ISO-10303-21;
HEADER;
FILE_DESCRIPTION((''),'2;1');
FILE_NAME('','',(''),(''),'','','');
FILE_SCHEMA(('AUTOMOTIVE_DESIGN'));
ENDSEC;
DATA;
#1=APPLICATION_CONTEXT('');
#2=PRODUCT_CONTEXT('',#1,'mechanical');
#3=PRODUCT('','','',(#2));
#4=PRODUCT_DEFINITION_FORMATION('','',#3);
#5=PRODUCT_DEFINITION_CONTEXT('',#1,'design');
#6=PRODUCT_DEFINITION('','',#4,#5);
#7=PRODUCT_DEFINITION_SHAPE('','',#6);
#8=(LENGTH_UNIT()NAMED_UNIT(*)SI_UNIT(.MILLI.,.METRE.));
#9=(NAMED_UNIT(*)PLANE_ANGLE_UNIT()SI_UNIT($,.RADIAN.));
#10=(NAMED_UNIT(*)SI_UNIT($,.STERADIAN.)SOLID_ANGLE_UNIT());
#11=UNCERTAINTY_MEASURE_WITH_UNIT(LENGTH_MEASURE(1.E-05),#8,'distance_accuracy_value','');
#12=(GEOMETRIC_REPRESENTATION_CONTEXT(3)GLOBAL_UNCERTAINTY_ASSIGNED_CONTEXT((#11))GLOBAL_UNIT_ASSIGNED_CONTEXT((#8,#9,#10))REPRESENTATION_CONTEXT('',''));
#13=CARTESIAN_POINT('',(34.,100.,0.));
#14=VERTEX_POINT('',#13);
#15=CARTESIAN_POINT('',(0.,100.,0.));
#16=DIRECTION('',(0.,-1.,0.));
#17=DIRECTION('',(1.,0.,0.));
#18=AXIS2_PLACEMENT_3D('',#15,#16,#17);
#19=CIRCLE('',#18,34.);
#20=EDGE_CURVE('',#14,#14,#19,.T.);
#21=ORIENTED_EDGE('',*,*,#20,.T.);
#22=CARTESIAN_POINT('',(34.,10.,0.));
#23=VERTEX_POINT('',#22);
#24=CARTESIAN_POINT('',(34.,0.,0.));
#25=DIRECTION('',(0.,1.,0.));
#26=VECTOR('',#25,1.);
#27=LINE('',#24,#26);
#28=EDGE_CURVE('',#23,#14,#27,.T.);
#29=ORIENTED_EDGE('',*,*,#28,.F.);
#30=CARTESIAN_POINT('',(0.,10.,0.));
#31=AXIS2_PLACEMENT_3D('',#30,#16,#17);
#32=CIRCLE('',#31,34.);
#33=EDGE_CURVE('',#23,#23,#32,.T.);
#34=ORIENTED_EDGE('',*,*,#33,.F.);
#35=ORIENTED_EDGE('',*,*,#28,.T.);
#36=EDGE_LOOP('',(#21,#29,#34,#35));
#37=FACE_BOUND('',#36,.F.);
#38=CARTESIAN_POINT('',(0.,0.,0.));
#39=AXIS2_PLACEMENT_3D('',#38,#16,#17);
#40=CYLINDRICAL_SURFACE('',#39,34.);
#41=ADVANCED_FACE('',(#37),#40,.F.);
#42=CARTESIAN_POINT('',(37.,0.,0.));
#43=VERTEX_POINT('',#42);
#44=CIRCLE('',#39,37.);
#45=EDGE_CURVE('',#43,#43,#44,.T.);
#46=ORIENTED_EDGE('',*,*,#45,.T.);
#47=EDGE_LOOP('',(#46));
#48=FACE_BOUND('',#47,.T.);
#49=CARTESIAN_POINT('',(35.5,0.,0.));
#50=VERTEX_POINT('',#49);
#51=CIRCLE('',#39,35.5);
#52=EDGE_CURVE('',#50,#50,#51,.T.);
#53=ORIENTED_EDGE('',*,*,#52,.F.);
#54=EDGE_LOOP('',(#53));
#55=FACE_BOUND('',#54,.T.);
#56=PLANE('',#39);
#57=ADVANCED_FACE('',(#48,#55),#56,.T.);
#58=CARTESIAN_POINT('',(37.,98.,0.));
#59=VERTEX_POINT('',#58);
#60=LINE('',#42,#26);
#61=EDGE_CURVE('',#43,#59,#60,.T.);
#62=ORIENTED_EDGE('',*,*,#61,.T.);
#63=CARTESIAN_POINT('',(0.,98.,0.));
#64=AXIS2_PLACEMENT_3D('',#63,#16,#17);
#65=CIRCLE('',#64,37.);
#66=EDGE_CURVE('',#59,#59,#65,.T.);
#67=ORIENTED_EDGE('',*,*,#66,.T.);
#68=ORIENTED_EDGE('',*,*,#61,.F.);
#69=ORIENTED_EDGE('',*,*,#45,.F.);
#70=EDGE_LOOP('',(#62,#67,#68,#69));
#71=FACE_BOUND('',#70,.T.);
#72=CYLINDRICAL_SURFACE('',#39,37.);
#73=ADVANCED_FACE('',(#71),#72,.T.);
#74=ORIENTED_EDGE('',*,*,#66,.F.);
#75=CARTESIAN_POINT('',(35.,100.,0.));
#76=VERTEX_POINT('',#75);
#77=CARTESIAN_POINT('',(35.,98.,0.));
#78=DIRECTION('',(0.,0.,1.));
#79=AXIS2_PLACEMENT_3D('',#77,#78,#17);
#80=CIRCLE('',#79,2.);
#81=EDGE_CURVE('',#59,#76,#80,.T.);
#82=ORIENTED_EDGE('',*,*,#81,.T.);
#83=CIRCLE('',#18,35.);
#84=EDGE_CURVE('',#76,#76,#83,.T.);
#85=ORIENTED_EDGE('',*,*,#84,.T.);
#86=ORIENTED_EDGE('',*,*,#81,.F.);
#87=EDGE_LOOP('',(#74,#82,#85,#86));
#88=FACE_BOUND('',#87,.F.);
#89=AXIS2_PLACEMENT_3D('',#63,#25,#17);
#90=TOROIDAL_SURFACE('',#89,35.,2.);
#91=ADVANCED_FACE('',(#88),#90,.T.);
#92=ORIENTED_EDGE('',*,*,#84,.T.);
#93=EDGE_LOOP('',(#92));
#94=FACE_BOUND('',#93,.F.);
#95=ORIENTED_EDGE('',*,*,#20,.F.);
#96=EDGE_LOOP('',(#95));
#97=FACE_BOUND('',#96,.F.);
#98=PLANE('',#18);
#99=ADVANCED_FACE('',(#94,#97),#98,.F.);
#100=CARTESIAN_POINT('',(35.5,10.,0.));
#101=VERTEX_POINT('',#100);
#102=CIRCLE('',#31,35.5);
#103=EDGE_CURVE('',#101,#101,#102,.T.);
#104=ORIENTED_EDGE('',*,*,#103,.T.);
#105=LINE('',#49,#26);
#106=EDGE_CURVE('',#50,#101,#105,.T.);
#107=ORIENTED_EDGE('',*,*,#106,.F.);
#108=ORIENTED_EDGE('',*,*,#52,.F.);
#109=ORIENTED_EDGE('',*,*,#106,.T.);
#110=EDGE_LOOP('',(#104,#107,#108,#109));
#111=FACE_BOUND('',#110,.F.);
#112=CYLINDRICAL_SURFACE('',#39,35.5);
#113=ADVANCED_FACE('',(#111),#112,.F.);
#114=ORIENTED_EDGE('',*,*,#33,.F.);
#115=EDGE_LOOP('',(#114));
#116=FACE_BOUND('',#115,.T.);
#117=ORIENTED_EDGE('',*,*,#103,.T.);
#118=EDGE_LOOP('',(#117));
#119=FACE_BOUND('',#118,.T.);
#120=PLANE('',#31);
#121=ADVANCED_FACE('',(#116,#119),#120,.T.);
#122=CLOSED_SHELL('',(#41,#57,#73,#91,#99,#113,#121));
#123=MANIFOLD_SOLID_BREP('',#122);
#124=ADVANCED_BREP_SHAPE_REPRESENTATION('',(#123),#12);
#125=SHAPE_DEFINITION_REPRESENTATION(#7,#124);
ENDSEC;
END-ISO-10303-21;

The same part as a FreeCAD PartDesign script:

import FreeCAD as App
import Part
import Sketcher
from FreeCAD import Vector
Q = App.Units.Quantity


def edges_at(feature, points):
    """Names of the edges that pass closest to the given points."""
    edges = feature.Shape.Edges
    near = lambda p: min(range(len(edges)), key=lambda i: edges[i].distToShape(Part.Vertex(*p))[0])
    return sorted({f"Edge{near(p) + 1}" for p in points})

doc = App.newDocument("Part")
params = doc.addObject("Spreadsheet::Sheet", "Params")
for row, (alias, value) in enumerate([
    ("sketch1_diameter", "74 mm"),
    ("pad1_length", "100 mm"),
    ("sketch2_diameter", "68 mm"),
    ("pocket1_length", "245 mm"),
    ("fillet_radius", "2 mm"),
    ("sketch3_diameter", "71 mm"),
    ("pocket2_length", "10 mm"),
], start=1):
    params.set(f"A{row}", alias)
    params.set(f"B{row}", "=" + value)
    params.setAlias(f"B{row}", alias)

body = doc.addObject("PartDesign::Body", "Body")

sketch1 = body.newObject("Sketcher::SketchObject", "Sketch")
sketch1.AttachmentSupport = (doc.getObject("XZ_Plane"), [""])
sketch1.MapMode = "FlatFace"
sketch1.addGeometry(Part.Circle(Vector(0, 0, 0), Vector(0, 0, 1), 37), False)
sketch1.addConstraint(Sketcher.Constraint("Coincident", 0, 3, -1, 1))
sketch1.addConstraint(Sketcher.Constraint("Diameter", 0, Q("74 mm")))
sketch1.setExpression("Constraints[1]", "Params.sketch1_diameter")
pad1 = body.newObject("PartDesign::Pad", "Pad")
pad1.Profile = sketch1
pad1.setExpression("Length", "Params.pad1_length")
pad1.Reversed = True

sketch2 = body.newObject("Sketcher::SketchObject", "Sketch001")
sketch2.AttachmentSupport = (doc.getObject("XZ_Plane"), [""])
sketch2.MapMode = "FlatFace"
sketch2.addGeometry(Part.Circle(Vector(0, 0, 0), Vector(0, 0, 1), 34), False)
sketch2.addConstraint(Sketcher.Constraint("Coincident", 0, 3, -1, 1))
sketch2.addConstraint(Sketcher.Constraint("Diameter", 0, Q("68 mm")))
sketch2.setExpression("Constraints[1]", "Params.sketch2_diameter")
pocket1 = body.newObject("PartDesign::Pocket", "Pocket")
pocket1.Profile = sketch2
pocket1.setExpression("Length", "Params.pocket1_length")
doc.recompute()

fillet = body.newObject("PartDesign::Fillet", "Fillet")
fillet.Base = (pocket1, edges_at(pocket1, [(-37, 100, 0)]))
fillet.setExpression("Radius", "Params.fillet_radius")

sketch3 = body.newObject("Sketcher::SketchObject", "Sketch002")
sketch3.AttachmentSupport = (doc.getObject("XZ_Plane"), [""])
sketch3.MapMode = "FlatFace"
sketch3.addGeometry(Part.Circle(Vector(0, 0, 0), Vector(0, 0, 1), 36), False)
sketch3.addConstraint(Sketcher.Constraint("Coincident", 0, 3, -1, 1))
sketch3.addConstraint(Sketcher.Constraint("Diameter", 0, Q("71 mm")))
sketch3.setExpression("Constraints[1]", "Params.sketch3_diameter")
pocket2 = body.newObject("PartDesign::Pocket", "Pocket001")
pocket2.Profile = sketch3
pocket2.setExpression("Length", "Params.pocket2_length")

doc.recompute()
